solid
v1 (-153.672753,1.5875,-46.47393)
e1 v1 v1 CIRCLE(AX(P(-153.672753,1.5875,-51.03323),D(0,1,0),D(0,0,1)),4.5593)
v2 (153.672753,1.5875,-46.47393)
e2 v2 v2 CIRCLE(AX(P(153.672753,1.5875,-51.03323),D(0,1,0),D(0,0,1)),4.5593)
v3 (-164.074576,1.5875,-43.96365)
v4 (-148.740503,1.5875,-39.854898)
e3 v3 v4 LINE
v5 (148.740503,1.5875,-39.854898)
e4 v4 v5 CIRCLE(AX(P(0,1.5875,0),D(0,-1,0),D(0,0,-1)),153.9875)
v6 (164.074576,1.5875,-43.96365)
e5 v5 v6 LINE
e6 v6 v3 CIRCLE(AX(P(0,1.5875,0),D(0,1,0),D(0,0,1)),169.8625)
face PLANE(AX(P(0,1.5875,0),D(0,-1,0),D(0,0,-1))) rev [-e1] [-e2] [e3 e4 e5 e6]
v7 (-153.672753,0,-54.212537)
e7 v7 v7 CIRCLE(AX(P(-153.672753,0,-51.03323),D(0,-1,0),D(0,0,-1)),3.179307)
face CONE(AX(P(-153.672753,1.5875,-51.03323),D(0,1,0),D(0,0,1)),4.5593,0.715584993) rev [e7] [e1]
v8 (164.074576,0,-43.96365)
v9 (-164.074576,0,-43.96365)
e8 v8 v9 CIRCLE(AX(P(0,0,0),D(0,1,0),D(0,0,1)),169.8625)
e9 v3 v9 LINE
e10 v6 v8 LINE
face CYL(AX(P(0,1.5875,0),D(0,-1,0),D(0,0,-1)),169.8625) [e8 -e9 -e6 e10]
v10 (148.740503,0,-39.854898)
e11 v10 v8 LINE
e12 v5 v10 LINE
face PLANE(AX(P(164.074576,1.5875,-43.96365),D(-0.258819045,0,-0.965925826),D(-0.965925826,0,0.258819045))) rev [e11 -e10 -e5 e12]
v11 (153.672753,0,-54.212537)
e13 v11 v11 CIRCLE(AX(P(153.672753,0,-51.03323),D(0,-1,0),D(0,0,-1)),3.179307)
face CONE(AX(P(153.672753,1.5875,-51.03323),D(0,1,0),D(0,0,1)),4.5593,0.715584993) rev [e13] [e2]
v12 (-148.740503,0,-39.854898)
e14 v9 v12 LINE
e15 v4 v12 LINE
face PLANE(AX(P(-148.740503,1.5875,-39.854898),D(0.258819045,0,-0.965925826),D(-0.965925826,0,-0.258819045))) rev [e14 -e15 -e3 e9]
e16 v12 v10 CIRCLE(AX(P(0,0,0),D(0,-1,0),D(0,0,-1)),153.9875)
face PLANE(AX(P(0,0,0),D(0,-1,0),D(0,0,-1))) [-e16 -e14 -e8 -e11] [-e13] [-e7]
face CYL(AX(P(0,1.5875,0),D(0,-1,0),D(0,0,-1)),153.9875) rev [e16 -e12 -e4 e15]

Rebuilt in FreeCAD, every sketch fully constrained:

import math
import FreeCAD as App
import Part
import Sketcher
Q = App.Units.Quantity

doc = App.newDocument("Part")
body = doc.addObject("PartDesign::Body", "Body")

# Sketch on XZ plane
sketch1 = body.newObject("Sketcher::SketchObject", "Sketch")
sketch1.AttachmentSupport = (doc.getObject("XZ_Plane"), [""])
sketch1.MapMode = "FlatFace"
sketch1.addGeometry([
    Part.LineSegment(App.Vector(-164.074576, -43.96365, 0), App.Vector(-148.740503, -39.854898, 0)),
    Part.ArcOfCircle(Part.Circle(App.Vector(0, 0, 0), App.Vector(0, 0, 1), 153.9875), math.radians(-165), math.radians(-15)),
    Part.LineSegment(App.Vector(148.740503, -39.854898, 0), App.Vector(164.074576, -43.96365, 0)),
    Part.ArcOfCircle(Part.Circle(App.Vector(0, 0, 0), App.Vector(0, 0, 1), 169.8625), math.radians(-165), math.radians(-15)),
], False)
sketch1.addConstraint([
    Sketcher.Constraint("Coincident", 0, 2, 1, 1),
    Sketcher.Constraint("Coincident", 1, 2, 2, 1),
    Sketcher.Constraint("Coincident", 2, 2, 3, 2),
    Sketcher.Constraint("Coincident", 3, 1, 0, 1),
    Sketcher.Constraint("Coincident", 1, 3, -1, 1),
    Sketcher.Constraint("Coincident", 3, 3, -1, 1),
    Sketcher.Constraint("Horizontal", 0, 2, 1, 2),
    Sketcher.Constraint("Horizontal", 2, 2, 3, 1),
    Sketcher.Constraint("Angle", 0, Q("15 deg")),
    Sketcher.Constraint("Radius", 1, Q("6.0625 in")),
    Sketcher.Constraint("Radius", 3, Q("6.6875 in")),
    Sketcher.Constraint("DistanceY", 2, 2, -1, 1, Q("43.96365 mm")),
])
pad1 = body.newObject("PartDesign::Pad", "Pad")
pad1.Profile = sketch1
pad1.Length = Q("0.0625 in")
pad1.Reversed = True

# Sketch on YZ plane
sketch2 = body.newObject("Sketcher::SketchObject", "Sketch001")
sketch2.AttachmentSupport = (doc.getObject("YZ_Plane"), [""])
sketch2.MapMode = "FlatFace"
sketch2.AttachmentOffset = App.Placement(App.Vector(0, 0, -153.672753), App.Rotation())
sketch2.addGeometry([
    Part.LineSegment(App.Vector(0, -51.03323, 0), App.Vector(1.5875, -51.03323, 0)),  # 0
    Part.LineSegment(App.Vector(1.5875, -51.03323, 0), App.Vector(1.5875, -46.47393, 0)),  # 1
    Part.LineSegment(App.Vector(1.5875, -46.47393, 0), App.Vector(-1.071462, -48.78533, 0)),  # 2
    Part.LineSegment(App.Vector(-1.071462, -48.78533, 0), App.Vector(0, -48.78533, 0)),  # 3
    Part.LineSegment(App.Vector(0, -48.78533, 0), App.Vector(0, -51.03323, 0)),  # 4
], False)
sketch2.addGeometry(Part.LineSegment(App.Vector(1.5875, -51.03323, 0), App.Vector(-1.071462, -51.03323, 0)), True)  # axis
sketch2.addConstraint([
    Sketcher.Constraint("Coincident", 0, 2, 1, 1),
    Sketcher.Constraint("Coincident", 1, 2, 2, 1),
    Sketcher.Constraint("Coincident", 2, 2, 3, 1),
    Sketcher.Constraint("Coincident", 3, 2, 4, 1),
    Sketcher.Constraint("Coincident", 4, 2, 0, 1),
    Sketcher.Constraint("Horizontal", 0),
    Sketcher.Constraint("Vertical", 1),
    Sketcher.Constraint("Horizontal", 3),
    Sketcher.Constraint("Vertical", 4),
    Sketcher.Constraint("Horizontal", 5),
    Sketcher.Constraint("Coincident", 5, 1, 0, 2),
    Sketcher.Constraint("PointOnObject", 3, 2, -2),
    Sketcher.Constraint("Vertical", 2, 2, 5, 2),
    Sketcher.Constraint("Angle", 2, Q("-139 deg")),
    Sketcher.Constraint("DistanceX", 0, 1, 0, 2, Q("0.0625 in")),
    Sketcher.Constraint("DistanceY", 1, 1, 1, 2, Q("0.1795 in")),
    Sketcher.Constraint("DistanceY", 4, 2, 4, 1, Q("0.0885 in")),
    Sketcher.Constraint("DistanceY", 0, 2, -1, 1, Q("51.03323 mm")),
])
groove = body.newObject("PartDesign::Groove", "Groove")
groove.Profile = sketch2
groove.ReferenceAxis = (sketch2, ["Axis0"])
groove.Angle = 360
doc.recompute()

linearpattern = body.newObject("PartDesign::LinearPattern", "LinearPattern")
linearpattern.Originals = [groove]
linearpattern.Direction = (doc.getObject("X_Axis"), [""])
linearpattern.Mode = "offset"
linearpattern.Offset = 307.345507
linearpattern.Occurrences = 2
body.Tip = linearpattern

doc.recompute()
